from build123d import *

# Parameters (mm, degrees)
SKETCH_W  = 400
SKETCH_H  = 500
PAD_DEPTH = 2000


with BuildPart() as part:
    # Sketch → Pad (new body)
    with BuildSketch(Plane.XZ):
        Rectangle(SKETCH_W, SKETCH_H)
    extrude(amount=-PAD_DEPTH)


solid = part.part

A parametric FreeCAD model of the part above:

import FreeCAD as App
import Part
import Sketcher

V = App.Vector


def add_polygon(sketch, points):
    """Adds a closed chain of lines whose ends are joined by coincident constraints."""
    first, n = sketch.GeometryCount, len(points)
    for a, b in zip(points, points[1:] + points[:1]):
        sketch.addGeometry(Part.LineSegment(App.Vector(*a, 0), App.Vector(*b, 0)), False)
    for i in range(n):
        sketch.addConstraint(Sketcher.Constraint("Coincident", first + i, 2, first + (i + 1) % n, 1))

doc = App.newDocument("Part")
params = doc.addObject("Spreadsheet::Sheet", "Params")
for row, (alias, value) in enumerate([
    ("sketch1_width", "400 mm"),
    ("sketch1_height", "500 mm"),
    ("pad1_length", "2000 mm"),
], start=1):
    params.set(f"A{row}", alias)
    params.set(f"B{row}", "=" + value)
    params.setAlias(f"B{row}", alias)

body = doc.addObject("PartDesign::Body", "Body")

# Sketch on XZ plane
sketch1 = body.newObject("Sketcher::SketchObject", "Sketch")
sketch1.AttachmentSupport = (doc.getObject("XZ_Plane"), [""])
sketch1.MapMode = "FlatFace"
add_polygon(sketch1, [(-200, 250), (-200, -250), (200, -250), (200, 250)])  # lines 0-3
sketch1.addConstraint(Sketcher.Constraint("Vertical", 0))
sketch1.addConstraint(Sketcher.Constraint("Horizontal", 1))
sketch1.addConstraint(Sketcher.Constraint("Vertical", 2))
sketch1.addConstraint(Sketcher.Constraint("Horizontal", 3))
sketch1.addConstraint(Sketcher.Constraint("Symmetric", 0, 2, 2, 2, -1, 1))
sketch1.addConstraint(Sketcher.Constraint("DistanceX", 1, 1, 1, 2, 400.0))
sketch1.addConstraint(Sketcher.Constraint("DistanceY", 0, 2, 0, 1, 500.0))
sketch1.setExpression("Constraints[9]", "Params.sketch1_width")
sketch1.setExpression("Constraints[10]", "Params.sketch1_height")
pad1 = body.newObject("PartDesign::Pad", "Pad")
pad1.Profile = sketch1
pad1.setExpression("Length", "Params.pad1_length")
pad1.Reversed = True

doc.recompute()
